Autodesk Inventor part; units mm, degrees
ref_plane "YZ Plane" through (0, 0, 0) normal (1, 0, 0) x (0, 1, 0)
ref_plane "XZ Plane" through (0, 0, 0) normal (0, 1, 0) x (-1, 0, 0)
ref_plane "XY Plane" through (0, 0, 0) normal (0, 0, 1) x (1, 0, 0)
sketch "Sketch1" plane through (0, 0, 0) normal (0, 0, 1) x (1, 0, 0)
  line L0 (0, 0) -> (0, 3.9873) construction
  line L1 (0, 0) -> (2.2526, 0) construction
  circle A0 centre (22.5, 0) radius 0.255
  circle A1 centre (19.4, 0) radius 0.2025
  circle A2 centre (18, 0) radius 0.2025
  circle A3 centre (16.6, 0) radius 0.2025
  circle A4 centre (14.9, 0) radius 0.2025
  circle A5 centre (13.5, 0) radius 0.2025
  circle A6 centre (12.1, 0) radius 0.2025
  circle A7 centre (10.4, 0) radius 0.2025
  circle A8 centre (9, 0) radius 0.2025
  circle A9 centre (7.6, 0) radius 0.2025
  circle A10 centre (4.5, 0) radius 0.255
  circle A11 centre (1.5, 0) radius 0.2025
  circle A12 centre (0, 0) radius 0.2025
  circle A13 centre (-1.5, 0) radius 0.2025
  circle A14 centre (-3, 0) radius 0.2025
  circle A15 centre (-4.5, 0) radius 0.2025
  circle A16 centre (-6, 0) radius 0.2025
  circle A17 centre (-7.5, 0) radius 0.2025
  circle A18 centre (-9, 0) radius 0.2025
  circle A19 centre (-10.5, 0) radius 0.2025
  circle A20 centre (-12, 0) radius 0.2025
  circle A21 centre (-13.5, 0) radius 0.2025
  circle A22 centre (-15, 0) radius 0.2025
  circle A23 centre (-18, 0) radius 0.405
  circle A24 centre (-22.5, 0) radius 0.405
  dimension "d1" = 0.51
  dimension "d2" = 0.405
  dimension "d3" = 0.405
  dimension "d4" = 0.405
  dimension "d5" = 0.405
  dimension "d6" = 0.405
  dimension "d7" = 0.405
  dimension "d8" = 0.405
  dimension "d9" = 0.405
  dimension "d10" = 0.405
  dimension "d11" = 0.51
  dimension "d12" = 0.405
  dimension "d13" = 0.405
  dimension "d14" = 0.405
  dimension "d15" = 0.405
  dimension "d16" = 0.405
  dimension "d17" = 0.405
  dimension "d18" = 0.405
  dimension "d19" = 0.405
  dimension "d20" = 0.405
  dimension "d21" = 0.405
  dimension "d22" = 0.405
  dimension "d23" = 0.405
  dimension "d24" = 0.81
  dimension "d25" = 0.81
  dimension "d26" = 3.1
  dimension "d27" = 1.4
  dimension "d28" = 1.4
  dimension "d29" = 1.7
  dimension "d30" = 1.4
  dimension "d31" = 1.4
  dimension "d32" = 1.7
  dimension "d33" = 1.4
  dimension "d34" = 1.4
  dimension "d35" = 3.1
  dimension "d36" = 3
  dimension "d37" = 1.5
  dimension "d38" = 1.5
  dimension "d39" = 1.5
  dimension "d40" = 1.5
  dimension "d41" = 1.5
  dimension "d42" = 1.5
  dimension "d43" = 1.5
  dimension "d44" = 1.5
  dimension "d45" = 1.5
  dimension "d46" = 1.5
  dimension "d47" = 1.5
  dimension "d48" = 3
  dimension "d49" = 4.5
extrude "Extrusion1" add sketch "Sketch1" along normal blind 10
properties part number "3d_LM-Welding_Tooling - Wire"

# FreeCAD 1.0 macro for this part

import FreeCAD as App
import Part
import Sketcher
from FreeCAD import Vector

doc = App.newDocument("Part")
body = doc.addObject("PartDesign::Body", "Body")
body.AllowCompound = True

# Sketch on XY plane
sketch1 = body.newObject("Sketcher::SketchObject", "Sketch")
sketch1.AttachmentSupport = (doc.getObject("XY_Plane"), [""])
sketch1.MapMode = "FlatFace"
sketch1.addGeometry([
    Part.Circle(Vector(22.5, 0, 0), Vector(0, 0, 1), 0.26),  # 0
    Part.Circle(Vector(19.4, 0, 0), Vector(0, 0, 1), 0.2),  # 1
    Part.Circle(Vector(18, 0, 0), Vector(0, 0, 1), 0.2),  # 2
    Part.Circle(Vector(16.6, 0, 0), Vector(0, 0, 1), 0.2),  # 3
    Part.Circle(Vector(14.9, 0, 0), Vector(0, 0, 1), 0.2),  # 4
    Part.Circle(Vector(13.5, 0, 0), Vector(0, 0, 1), 0.2),  # 5
    Part.Circle(Vector(12.1, 0, 0), Vector(0, 0, 1), 0.2),  # 6
    Part.Circle(Vector(10.4, 0, 0), Vector(0, 0, 1), 0.2),  # 7
    Part.Circle(Vector(9, 0, 0), Vector(0, 0, 1), 0.2),  # 8
    Part.Circle(Vector(7.6, 0, 0), Vector(0, 0, 1), 0.2),  # 9
    Part.Circle(Vector(4.5, 0, 0), Vector(0, 0, 1), 0.26),  # 10
    Part.Circle(Vector(1.5, 0, 0), Vector(0, 0, 1), 0.2),  # 11
    Part.Circle(Vector(0, 0, 0), Vector(0, 0, 1), 0.2),  # 12
    Part.Circle(Vector(-1.5, 0, 0), Vector(0, 0, 1), 0.2),  # 13
    Part.Circle(Vector(-3, 0, 0), Vector(0, 0, 1), 0.2),  # 14
    Part.Circle(Vector(-4.5, 0, 0), Vector(0, 0, 1), 0.2),  # 15
    Part.Circle(Vector(-6, 0, 0), Vector(0, 0, 1), 0.2),  # 16
    Part.Circle(Vector(-7.5, 0, 0), Vector(0, 0, 1), 0.2),  # 17
    Part.Circle(Vector(-9, 0, 0), Vector(0, 0, 1), 0.2),  # 18
    Part.Circle(Vector(-10.5, 0, 0), Vector(0, 0, 1), 0.2),  # 19
    Part.Circle(Vector(-12, 0, 0), Vector(0, 0, 1), 0.2),  # 20
    Part.Circle(Vector(-13.5, 0, 0), Vector(0, 0, 1), 0.2),  # 21
    Part.Circle(Vector(-15, 0, 0), Vector(0, 0, 1), 0.2),  # 22
    Part.Circle(Vector(-18, 0, 0), Vector(0, 0, 1), 0.41),  # 23
    Part.Circle(Vector(-22.5, 0, 0), Vector(0, 0, 1), 0.41),  # 24
], False)
sketch1.addConstraint([
    Sketcher.Constraint("Coincident", 12, 3, -1, 1),
    Sketcher.Constraint("Equal", 1, 2),
    Sketcher.Constraint("Equal", 2, 3),
    Sketcher.Constraint("Equal", 3, 4),
    Sketcher.Constraint("Equal", 4, 5),
    Sketcher.Constraint("Equal", 5, 6),
    Sketcher.Constraint("Equal", 6, 7),
    Sketcher.Constraint("Equal", 7, 8),
    Sketcher.Constraint("Equal", 8, 9),
    Sketcher.Constraint("Equal", 0, 10),
    Sketcher.Constraint("Equal", 9, 11),
    Sketcher.Constraint("Equal", 11, 12),
    Sketcher.Constraint("Equal", 12, 13),
    Sketcher.Constraint("Equal", 13, 14),
    Sketcher.Constraint("Equal", 14, 15),
    Sketcher.Constraint("Equal", 15, 16),
    Sketcher.Constraint("Equal", 16, 17),
    Sketcher.Constraint("Equal", 17, 18),
    Sketcher.Constraint("Equal", 18, 19),
    Sketcher.Constraint("Equal", 19, 20),
    Sketcher.Constraint("Equal", 20, 21),
    Sketcher.Constraint("Equal", 21, 22),
    Sketcher.Constraint("Equal", 23, 24),
    Sketcher.Constraint("Symmetric", 11, 3, 13, 3, -1, 1),
    Sketcher.Constraint("Symmetric", 10, 3, 15, 3, -1, 1),
    Sketcher.Constraint("Symmetric", 8, 3, 18, 3, -1, 1),
    Sketcher.Constraint("Symmetric", 5, 3, 21, 3, -1, 1),
    Sketcher.Constraint("Symmetric", 2, 3, 23, 3, -1, 1),
    Sketcher.Constraint("Symmetric", 0, 3, 24, 3, -1, 1),
    Sketcher.Constraint("PointOnObject", 0, 3, -1),
    Sketcher.Constraint("PointOnObject", 1, 3, -1),
    Sketcher.Constraint("PointOnObject", 2, 3, -1),
    Sketcher.Constraint("PointOnObject", 3, 3, -1),
    Sketcher.Constraint("PointOnObject", 4, 3, -1),
    Sketcher.Constraint("PointOnObject", 5, 3, -1),
    Sketcher.Constraint("PointOnObject", 6, 3, -1),
    Sketcher.Constraint("PointOnObject", 7, 3, -1),
    Sketcher.Constraint("PointOnObject", 8, 3, -1),
    Sketcher.Constraint("PointOnObject", 9, 3, -1),
    Sketcher.Constraint("PointOnObject", 10, 3, -1),
    Sketcher.Constraint("PointOnObject", 11, 3, -1),
    Sketcher.Constraint("PointOnObject", 14, 3, -1),
    Sketcher.Constraint("PointOnObject", 16, 3, -1),
    Sketcher.Constraint("PointOnObject", 17, 3, -1),
    Sketcher.Constraint("PointOnObject", 19, 3, -1),
    Sketcher.Constraint("PointOnObject", 20, 3, -1),
    Sketcher.Constraint("PointOnObject", 22, 3, -1),
    Sketcher.Constraint("Diameter", 0, 0.51),
    Sketcher.Constraint("Diameter", 23, 0.81),
    Sketcher.Constraint("Diameter", 1, 0.405),
    Sketcher.Constraint("DistanceX", 14, 3, -1, 1, 3.0),
    Sketcher.Constraint("DistanceX", 11, 3, 10, 3, 3.0),
    Sketcher.Constraint("DistanceX", 13, 3, 11, 3, 3.0),
    Sketcher.Constraint("DistanceX", 16, 3, 14, 3, 3.0),
    Sketcher.Constraint("DistanceX", 17, 3, 15, 3, 3.0),
    Sketcher.Constraint("DistanceX", 18, 3, 16, 3, 3.0),
    Sketcher.Constraint("DistanceX", 19, 3, 17, 3, 3.0),
    Sketcher.Constraint("DistanceX", 20, 3, 18, 3, 3.0),
    Sketcher.Constraint("DistanceX", 21, 3, 19, 3, 3.0),
    Sketcher.Constraint("DistanceX", 22, 3, 20, 3, 3.0),
    Sketcher.Constraint("DistanceX", 23, 3, 22, 3, 3.0),
    Sketcher.Constraint("DistanceX", 1, 3, 0, 3, 3.1),
    Sketcher.Constraint("DistanceX", 2, 3, 1, 3, 1.4),
    Sketcher.Constraint("DistanceX", 3, 3, 2, 3, 1.4),
    Sketcher.Constraint("DistanceX", 4, 3, 3, 3, 1.7),
    Sketcher.Constraint("DistanceX", 6, 3, 5, 3, 1.4),
    Sketcher.Constraint("DistanceX", 7, 3, 6, 3, 1.7),
    Sketcher.Constraint("DistanceX", 9, 3, 8, 3, 1.4),
])
pad1 = body.newObject("PartDesign::Pad", "Pad")
pad1.Profile = sketch1
pad1.Length = 10

doc.recompute()
